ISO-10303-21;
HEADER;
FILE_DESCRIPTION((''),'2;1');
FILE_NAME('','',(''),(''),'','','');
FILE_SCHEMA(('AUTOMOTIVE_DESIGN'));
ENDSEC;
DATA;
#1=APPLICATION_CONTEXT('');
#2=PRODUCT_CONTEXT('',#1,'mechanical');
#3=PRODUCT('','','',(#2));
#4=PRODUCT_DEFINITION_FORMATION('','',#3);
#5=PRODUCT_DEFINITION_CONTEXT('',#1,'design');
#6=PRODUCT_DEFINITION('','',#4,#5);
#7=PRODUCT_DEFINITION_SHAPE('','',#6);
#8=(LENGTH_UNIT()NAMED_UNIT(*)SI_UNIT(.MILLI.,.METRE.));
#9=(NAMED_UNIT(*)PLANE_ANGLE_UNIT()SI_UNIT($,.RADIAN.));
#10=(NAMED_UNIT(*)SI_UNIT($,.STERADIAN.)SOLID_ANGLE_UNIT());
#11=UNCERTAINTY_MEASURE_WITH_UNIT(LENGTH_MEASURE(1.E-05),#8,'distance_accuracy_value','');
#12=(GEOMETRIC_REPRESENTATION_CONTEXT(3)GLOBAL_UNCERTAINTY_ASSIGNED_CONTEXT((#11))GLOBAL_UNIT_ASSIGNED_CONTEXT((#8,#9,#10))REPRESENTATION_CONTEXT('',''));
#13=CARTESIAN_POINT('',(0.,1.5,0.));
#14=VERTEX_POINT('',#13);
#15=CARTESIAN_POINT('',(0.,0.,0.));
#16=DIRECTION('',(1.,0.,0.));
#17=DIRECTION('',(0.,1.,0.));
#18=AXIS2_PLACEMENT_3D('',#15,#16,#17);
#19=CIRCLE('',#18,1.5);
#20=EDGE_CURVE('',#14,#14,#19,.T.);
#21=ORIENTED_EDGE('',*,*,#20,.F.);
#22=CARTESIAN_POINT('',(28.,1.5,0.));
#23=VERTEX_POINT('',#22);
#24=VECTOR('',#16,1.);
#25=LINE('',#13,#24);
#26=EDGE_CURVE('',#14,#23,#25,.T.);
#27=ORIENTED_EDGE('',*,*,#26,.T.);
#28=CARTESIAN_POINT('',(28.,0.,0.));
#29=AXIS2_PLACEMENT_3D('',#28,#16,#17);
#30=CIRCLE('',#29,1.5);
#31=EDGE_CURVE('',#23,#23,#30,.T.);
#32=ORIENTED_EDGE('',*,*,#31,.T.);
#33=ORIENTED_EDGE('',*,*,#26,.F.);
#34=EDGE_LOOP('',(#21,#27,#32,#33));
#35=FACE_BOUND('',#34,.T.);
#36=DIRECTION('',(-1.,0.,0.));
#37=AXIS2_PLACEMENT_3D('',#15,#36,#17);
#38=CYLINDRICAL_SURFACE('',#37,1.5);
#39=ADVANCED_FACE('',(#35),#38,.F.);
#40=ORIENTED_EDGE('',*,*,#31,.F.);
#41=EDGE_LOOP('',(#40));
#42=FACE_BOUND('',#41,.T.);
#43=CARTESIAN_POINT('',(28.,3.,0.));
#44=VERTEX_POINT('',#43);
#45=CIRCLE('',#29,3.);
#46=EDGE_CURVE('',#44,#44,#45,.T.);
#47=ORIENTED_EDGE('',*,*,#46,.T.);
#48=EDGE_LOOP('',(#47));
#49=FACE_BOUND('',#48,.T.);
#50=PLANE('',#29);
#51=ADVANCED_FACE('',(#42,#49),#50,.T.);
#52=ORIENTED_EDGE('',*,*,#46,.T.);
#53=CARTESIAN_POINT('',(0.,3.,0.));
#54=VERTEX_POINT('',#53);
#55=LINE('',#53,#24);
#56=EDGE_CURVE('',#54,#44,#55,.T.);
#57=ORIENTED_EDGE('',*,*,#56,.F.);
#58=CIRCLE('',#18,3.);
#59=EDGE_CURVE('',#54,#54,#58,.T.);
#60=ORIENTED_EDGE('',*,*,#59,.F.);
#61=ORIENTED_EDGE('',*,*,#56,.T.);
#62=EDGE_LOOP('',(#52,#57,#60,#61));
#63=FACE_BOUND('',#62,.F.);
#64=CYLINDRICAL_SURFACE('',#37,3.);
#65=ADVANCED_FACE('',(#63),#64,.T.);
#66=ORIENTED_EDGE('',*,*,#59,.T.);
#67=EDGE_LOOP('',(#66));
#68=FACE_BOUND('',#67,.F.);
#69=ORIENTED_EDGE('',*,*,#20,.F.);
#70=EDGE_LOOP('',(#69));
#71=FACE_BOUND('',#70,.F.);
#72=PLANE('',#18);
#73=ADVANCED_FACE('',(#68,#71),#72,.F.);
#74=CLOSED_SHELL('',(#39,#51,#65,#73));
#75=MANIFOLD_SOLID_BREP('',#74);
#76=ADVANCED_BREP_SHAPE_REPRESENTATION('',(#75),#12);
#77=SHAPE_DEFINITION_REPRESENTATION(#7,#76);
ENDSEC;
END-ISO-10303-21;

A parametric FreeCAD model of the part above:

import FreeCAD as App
import Part
import Sketcher
Q = App.Units.Quantity

doc = App.newDocument("Part")
params = doc.addObject("Spreadsheet::Sheet", "Params")
for row, (alias, value) in enumerate([
    ("sketch1_diameter", "6 mm"),
    ("sketch1_diameter2", "3 mm"),
    ("pad1_length", "28 mm"),
], start=1):
    params.set(f"A{row}", alias)
    params.set(f"B{row}", "=" + value)
    params.setAlias(f"B{row}", alias)

body = doc.addObject("PartDesign::Body", "Body")

# Sketch on YZ plane
sketch1 = doc.addObject("Sketcher::SketchObject", "Sketch")
body.addObject(sketch1)
sketch1.AttachmentSupport = (doc.YZ_Plane, [""])
sketch1.MapMode = "FlatFace"
sketch1.addGeometry([
    Part.Circle(App.Vector(0, 0, 0), App.Vector(0, 0, 1), 3),
    Part.Circle(App.Vector(0, 0, 0), App.Vector(0, 0, 1), 1.5),
], False)
sketch1.addConstraint([
    Sketcher.Constraint("Coincident", 0, 3, -1, 1),
    Sketcher.Constraint("Coincident", 1, 3, -1, 1),
    Sketcher.Constraint("Diameter", 0, Q("6 mm")),
    Sketcher.Constraint("Diameter", 1, Q("3 mm")),
])
sketch1.setExpression("Constraints[2]", "Params.sketch1_diameter")
sketch1.setExpression("Constraints[3]", "Params.sketch1_diameter2")
pad1 = doc.addObject("PartDesign::Pad", "Pad")
body.addObject(pad1)
pad1.Profile = sketch1
pad1.setExpression("Length", "Params.pad1_length")

doc.recompute()
